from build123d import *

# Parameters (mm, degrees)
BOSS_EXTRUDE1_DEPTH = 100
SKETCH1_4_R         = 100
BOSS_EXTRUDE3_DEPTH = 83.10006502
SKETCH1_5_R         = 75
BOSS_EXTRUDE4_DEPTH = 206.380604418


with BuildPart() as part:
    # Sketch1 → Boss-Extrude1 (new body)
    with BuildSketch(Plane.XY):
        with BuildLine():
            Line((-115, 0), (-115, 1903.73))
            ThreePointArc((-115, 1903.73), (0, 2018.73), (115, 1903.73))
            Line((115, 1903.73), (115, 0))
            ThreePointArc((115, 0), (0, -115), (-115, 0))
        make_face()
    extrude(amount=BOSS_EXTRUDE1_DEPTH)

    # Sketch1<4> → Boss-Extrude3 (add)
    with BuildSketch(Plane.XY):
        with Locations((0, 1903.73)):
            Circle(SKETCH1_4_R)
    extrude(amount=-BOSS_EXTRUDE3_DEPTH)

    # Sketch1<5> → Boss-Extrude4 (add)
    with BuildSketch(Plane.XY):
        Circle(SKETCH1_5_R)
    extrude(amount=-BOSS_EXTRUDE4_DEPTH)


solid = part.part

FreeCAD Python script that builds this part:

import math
import FreeCAD as App
import Part
import Sketcher
Q = App.Units.Quantity

doc = App.newDocument("Part")
body = doc.addObject("PartDesign::Body", "Body")

# Sketch on XY plane
sketch1 = body.newObject("Sketcher::SketchObject", "Sketch")
sketch1.AttachmentSupport = (doc.getObject("XY_Plane"), [""])
sketch1.MapMode = "FlatFace"
sketch1.addGeometry(Part.LineSegment(App.Vector(-115, 1903.73, 0), App.Vector(-115, 0, 0)), False)
sketch1.addGeometry(Part.ArcOfCircle(Part.Circle(App.Vector(0, 0, 0), App.Vector(0, 0, 1), 115), math.radians(180), math.radians(360)), False)
sketch1.addGeometry(Part.LineSegment(App.Vector(115, 0, 0), App.Vector(115, 1903.73, 0)), False)
sketch1.addGeometry(Part.ArcOfCircle(Part.Circle(App.Vector(0, 1903.73, 0), App.Vector(0, 0, 1), 115), math.radians(0), math.radians(180)), False)
sketch1.addConstraint(Sketcher.Constraint("Tangent", 0, 2, 1, 1))
sketch1.addConstraint(Sketcher.Constraint("Tangent", 1, 2, 2, 1))
sketch1.addConstraint(Sketcher.Constraint("Tangent", 2, 2, 3, 1))
sketch1.addConstraint(Sketcher.Constraint("Tangent", 3, 2, 0, 1))
sketch1.addConstraint(Sketcher.Constraint("Vertical", 0))
sketch1.addConstraint(Sketcher.Constraint("Vertical", 2))
sketch1.addConstraint(Sketcher.Constraint("Coincident", 1, 3, -1, 1))
sketch1.addConstraint(Sketcher.Constraint("Radius", 1, Q("115 mm")))
sketch1.addConstraint(Sketcher.Constraint("DistanceY", 0, 2, 0, 1, Q("1903.73 mm")))
pad1 = body.newObject("PartDesign::Pad", "Pad")
pad1.Profile = sketch1
pad1.Length = 100

# Sketch on XY plane
sketch2 = body.newObject("Sketcher::SketchObject", "Sketch001")
sketch2.AttachmentSupport = (doc.getObject("XY_Plane"), [""])
sketch2.MapMode = "FlatFace"
sketch2.addGeometry(Part.Circle(App.Vector(0, 1903.73, 0), App.Vector(0, 0, 1), 100), False)
sketch2.addConstraint(Sketcher.Constraint("PointOnObject", 0, 3, -2))
sketch2.addConstraint(Sketcher.Constraint("Diameter", 0, Q("200 mm")))
sketch2.addConstraint(Sketcher.Constraint("DistanceY", -1, 1, 0, 3, Q("1903.73 mm")))
pad2 = body.newObject("PartDesign::Pad", "Pad001")
pad2.Profile = sketch2
pad2.Length = 83.100065
pad2.Reversed = True

# Sketch on XY plane
sketch3 = body.newObject("Sketcher::SketchObject", "Sketch002")
sketch3.AttachmentSupport = (doc.getObject("XY_Plane"), [""])
sketch3.MapMode = "FlatFace"
sketch3.addGeometry(Part.Circle(App.Vector(0, 0, 0), App.Vector(0, 0, 1), 75), False)
sketch3.addConstraint(Sketcher.Constraint("Coincident", 0, 3, -1, 1))
sketch3.addConstraint(Sketcher.Constraint("Diameter", 0, Q("150 mm")))
pad3 = body.newObject("PartDesign::Pad", "Pad002")
pad3.Profile = sketch3
pad3.Length = 206.380604
pad3.Reversed = True

doc.recompute()
